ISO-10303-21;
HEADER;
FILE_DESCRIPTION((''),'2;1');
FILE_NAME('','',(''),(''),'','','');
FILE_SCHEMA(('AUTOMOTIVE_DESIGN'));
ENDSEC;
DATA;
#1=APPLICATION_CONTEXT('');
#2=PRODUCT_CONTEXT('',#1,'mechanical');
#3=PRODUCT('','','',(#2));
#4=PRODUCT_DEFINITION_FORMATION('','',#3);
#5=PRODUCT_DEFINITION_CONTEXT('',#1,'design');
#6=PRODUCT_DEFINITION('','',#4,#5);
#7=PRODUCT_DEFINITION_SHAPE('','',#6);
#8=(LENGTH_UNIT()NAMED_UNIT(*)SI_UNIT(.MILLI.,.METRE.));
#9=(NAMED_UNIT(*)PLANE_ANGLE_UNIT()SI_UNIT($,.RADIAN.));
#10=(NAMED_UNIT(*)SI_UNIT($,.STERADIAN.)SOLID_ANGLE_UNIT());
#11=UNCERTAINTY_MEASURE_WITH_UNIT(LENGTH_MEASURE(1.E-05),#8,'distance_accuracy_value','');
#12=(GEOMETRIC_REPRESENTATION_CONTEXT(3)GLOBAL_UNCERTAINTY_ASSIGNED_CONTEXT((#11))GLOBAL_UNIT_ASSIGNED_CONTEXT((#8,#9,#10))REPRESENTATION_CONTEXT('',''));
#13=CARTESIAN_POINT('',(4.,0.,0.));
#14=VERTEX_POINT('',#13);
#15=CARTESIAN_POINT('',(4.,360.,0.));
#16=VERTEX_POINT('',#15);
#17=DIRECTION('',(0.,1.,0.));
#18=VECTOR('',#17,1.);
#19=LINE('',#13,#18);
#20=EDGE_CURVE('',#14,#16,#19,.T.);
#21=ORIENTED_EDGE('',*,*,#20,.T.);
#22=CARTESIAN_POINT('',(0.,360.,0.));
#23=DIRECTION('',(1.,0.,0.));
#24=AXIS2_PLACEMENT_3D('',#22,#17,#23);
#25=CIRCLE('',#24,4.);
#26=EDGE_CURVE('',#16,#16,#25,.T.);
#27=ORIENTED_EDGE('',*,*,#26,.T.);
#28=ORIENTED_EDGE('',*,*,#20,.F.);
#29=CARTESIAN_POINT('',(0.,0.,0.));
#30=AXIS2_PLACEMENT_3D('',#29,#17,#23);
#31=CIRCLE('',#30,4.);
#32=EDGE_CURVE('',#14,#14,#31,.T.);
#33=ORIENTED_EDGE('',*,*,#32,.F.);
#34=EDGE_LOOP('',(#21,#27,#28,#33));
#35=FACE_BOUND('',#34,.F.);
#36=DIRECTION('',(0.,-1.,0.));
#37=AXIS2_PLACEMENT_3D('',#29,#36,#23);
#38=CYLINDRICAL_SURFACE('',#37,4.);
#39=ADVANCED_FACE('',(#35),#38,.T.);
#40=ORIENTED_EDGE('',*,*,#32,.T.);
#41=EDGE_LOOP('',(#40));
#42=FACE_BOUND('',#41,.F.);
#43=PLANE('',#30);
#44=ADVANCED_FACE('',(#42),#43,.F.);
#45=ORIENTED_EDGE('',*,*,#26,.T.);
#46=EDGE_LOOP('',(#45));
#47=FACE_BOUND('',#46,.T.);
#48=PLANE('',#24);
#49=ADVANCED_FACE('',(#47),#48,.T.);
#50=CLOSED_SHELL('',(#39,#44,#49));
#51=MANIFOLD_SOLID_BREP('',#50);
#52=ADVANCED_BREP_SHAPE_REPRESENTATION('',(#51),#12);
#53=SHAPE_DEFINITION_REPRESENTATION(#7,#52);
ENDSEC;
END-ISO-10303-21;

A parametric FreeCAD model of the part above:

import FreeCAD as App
import Part
import Sketcher

V = App.Vector

doc = App.newDocument("Part")
params = doc.addObject("Spreadsheet::Sheet", "Params")
for row, (alias, value) in enumerate([
    ("sketch1_diameter", "8 mm"),
    ("pad1_length", "360 mm"),
], start=1):
    params.set(f"A{row}", alias)
    params.set(f"B{row}", "=" + value)
    params.setAlias(f"B{row}", alias)

body = doc.addObject("PartDesign::Body", "Body")

# Sketch on XZ plane
sketch1 = doc.addObject("Sketcher::SketchObject", "Sketch")
body.addObject(sketch1)
sketch1.AttachmentSupport = (doc.XZ_Plane, [""])
sketch1.MapMode = "FlatFace"
sketch1.addGeometry(Part.Circle(V(0, 0, 0), V(0, 0, 1), 4), False)
sketch1.addConstraint([
    Sketcher.Constraint("Coincident", 0, 3, -1, 1),
    Sketcher.Constraint("Diameter", 0, 8.0),
])
sketch1.setExpression("Constraints[1]", "Params.sketch1_diameter")
pad1 = doc.addObject("PartDesign::Pad", "Pad")
body.addObject(pad1)
pad1.Profile = sketch1
pad1.setExpression("Length", "Params.pad1_length")
pad1.Reversed = True

doc.recompute()
